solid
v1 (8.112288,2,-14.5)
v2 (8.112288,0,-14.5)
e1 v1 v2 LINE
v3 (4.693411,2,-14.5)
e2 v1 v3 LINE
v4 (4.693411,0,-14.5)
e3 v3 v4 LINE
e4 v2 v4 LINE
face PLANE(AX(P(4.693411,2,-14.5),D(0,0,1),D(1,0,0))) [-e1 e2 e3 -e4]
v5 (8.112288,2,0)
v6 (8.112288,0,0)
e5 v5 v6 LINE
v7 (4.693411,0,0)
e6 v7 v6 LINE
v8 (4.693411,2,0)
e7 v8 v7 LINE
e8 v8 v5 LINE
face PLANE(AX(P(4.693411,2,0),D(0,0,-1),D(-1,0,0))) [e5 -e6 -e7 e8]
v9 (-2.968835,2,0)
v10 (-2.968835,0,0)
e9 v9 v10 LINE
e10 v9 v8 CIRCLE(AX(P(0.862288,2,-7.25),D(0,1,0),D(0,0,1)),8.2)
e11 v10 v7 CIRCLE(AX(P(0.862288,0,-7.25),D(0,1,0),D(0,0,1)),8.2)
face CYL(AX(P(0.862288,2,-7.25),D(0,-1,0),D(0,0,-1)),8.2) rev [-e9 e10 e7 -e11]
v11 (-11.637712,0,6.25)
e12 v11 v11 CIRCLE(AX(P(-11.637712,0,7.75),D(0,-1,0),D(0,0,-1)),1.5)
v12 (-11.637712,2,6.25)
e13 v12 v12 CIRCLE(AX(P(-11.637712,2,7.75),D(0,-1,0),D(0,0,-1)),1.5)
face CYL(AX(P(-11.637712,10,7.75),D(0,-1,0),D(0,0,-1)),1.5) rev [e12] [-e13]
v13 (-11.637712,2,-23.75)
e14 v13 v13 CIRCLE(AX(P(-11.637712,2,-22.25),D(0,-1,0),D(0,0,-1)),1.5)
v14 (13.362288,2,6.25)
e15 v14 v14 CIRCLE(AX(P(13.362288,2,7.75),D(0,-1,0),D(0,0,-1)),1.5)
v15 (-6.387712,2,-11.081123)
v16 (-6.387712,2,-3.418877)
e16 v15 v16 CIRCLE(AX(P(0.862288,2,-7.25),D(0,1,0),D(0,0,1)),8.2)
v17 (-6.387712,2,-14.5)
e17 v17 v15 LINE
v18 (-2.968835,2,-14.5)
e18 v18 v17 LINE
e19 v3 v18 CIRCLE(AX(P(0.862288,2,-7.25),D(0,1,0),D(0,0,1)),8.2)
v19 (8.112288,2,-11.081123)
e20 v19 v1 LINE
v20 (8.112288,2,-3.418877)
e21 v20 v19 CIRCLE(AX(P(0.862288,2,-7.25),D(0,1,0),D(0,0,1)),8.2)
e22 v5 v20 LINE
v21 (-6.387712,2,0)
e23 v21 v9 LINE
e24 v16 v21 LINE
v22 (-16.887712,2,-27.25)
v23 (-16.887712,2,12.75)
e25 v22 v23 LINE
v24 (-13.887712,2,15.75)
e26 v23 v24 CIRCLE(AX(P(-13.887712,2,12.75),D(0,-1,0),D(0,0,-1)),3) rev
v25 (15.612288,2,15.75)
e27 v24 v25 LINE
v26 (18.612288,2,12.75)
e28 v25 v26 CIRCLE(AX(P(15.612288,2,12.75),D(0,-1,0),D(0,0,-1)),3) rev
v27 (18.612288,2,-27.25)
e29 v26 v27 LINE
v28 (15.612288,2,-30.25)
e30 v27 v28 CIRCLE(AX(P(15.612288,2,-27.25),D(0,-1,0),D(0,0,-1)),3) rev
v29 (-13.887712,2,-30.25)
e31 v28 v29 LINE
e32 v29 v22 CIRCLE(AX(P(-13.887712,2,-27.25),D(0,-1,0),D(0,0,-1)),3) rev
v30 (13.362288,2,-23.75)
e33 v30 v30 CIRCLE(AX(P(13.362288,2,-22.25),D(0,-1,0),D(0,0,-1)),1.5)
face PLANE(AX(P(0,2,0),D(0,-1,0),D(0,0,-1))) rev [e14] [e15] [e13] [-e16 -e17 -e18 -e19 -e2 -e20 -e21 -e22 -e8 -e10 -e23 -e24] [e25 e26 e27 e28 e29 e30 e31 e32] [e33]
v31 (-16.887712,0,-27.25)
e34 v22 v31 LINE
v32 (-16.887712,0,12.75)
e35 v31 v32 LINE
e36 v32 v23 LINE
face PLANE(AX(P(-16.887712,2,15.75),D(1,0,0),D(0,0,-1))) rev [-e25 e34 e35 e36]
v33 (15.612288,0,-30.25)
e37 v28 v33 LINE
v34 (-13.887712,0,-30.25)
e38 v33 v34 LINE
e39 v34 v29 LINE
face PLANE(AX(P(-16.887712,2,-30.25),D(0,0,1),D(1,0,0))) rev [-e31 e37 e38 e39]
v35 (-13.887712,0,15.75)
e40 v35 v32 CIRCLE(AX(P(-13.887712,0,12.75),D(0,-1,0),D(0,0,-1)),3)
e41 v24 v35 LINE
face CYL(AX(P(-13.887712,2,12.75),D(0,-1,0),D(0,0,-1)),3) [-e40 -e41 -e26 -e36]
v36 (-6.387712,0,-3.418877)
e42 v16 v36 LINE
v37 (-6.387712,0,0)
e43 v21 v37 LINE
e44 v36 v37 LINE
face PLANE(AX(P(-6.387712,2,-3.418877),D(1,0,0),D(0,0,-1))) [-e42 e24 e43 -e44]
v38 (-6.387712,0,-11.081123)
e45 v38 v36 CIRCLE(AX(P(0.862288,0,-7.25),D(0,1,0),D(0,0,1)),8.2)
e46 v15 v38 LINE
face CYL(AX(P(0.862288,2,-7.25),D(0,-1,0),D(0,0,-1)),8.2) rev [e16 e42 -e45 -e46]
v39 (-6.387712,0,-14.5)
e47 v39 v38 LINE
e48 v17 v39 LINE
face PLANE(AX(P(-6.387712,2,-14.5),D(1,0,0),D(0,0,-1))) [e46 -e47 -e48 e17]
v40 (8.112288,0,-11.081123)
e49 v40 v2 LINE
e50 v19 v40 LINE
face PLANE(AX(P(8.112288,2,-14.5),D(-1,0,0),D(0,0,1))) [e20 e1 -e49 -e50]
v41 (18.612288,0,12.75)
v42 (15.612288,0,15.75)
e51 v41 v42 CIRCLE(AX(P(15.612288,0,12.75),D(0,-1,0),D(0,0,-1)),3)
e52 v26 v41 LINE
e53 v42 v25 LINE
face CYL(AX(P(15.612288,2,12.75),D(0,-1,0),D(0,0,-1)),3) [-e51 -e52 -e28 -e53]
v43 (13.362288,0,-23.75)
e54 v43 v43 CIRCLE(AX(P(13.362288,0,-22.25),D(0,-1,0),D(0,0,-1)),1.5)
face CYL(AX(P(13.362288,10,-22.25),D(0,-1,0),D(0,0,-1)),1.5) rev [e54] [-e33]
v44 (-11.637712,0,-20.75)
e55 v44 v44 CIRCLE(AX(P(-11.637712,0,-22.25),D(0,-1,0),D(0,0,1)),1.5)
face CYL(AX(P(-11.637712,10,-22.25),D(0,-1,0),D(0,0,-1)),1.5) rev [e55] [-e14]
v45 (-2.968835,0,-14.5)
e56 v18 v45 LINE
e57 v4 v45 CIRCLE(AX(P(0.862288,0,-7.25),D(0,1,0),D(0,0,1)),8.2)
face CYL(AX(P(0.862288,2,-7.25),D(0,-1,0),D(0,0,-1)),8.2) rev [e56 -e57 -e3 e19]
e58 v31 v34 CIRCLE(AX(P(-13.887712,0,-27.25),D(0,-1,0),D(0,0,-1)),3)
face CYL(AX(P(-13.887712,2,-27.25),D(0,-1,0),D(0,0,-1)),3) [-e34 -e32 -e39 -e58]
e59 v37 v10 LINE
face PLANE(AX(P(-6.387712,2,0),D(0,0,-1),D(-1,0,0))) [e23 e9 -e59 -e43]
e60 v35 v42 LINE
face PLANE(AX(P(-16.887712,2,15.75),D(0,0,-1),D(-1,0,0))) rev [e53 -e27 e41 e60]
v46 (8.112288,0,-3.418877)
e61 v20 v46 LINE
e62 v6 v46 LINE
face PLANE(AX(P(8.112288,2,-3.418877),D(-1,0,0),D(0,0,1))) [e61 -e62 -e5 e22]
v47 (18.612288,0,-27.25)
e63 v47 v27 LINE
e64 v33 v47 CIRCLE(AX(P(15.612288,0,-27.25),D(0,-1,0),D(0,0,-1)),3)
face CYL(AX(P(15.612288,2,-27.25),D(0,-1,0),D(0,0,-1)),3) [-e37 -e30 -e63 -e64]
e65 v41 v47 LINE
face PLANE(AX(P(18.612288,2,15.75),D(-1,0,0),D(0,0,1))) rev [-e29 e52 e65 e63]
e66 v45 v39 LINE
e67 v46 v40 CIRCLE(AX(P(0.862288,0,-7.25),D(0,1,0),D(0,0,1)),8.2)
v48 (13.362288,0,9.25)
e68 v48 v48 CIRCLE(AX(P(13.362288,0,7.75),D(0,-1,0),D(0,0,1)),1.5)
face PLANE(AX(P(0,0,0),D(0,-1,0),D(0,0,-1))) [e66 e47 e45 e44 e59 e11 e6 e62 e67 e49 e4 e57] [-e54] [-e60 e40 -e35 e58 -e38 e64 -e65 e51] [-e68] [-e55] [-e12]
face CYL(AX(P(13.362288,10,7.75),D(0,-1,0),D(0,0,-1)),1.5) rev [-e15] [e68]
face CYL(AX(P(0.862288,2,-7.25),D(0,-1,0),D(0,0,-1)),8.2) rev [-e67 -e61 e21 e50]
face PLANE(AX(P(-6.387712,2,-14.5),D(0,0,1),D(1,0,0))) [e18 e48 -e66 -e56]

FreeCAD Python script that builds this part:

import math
import FreeCAD as App
import Part
import Sketcher
from FreeCAD import Vector
Q = App.Units.Quantity


def edges_at(feature, points):
    """Names of the edges that pass closest to the given points."""
    edges = feature.Shape.Edges
    near = lambda p: min(range(len(edges)), key=lambda i: edges[i].distToShape(Part.Vertex(*p))[0])
    return sorted({f"Edge{near(p) + 1}" for p in points})


def add_polygon(sketch, points):
    """Adds a closed chain of lines whose ends are joined by coincident constraints."""
    first, n = sketch.GeometryCount, len(points)
    for a, b in zip(points, points[1:] + points[:1]):
        sketch.addGeometry(Part.LineSegment(App.Vector(*a, 0), App.Vector(*b, 0)), False)
    for i in range(n):
        sketch.addConstraint(Sketcher.Constraint("Coincident", first + i, 2, first + (i + 1) % n, 1))

doc = App.newDocument("Part")
params = doc.addObject("Spreadsheet::Sheet", "Params")
for row, (alias, value) in enumerate([
    ("sketch1_radius", "8.2 mm"),
    ("sketch1_height", "46 mm"),
    ("sketch1_width", "35.5 mm"),
    ("pad1_length", "2 mm"),
    ("fillet_radius", "3 mm"),
    ("sketch2_diameter", "3 mm"),
    ("pocket1_length", "10 mm"),
], start=1):
    params.set(f"A{row}", alias)
    params.set(f"B{row}", "=" + value)
    params.setAlias(f"B{row}", alias)

body = doc.addObject("PartDesign::Body", "Body")

sketch1 = body.newObject("Sketcher::SketchObject", "Sketch")
sketch1.AttachmentSupport = (doc.getObject("XZ_Plane"), [""])
sketch1.MapMode = "FlatFace"
add_polygon(sketch1, [(-16.887712, -30.25), (-16.887712, 15.75), (18.612288, 15.75), (18.612288, -30.25)])
sketch1.addGeometry(Part.LineSegment(Vector(-6.387712, 0, 0), Vector(-6.387712, -3.418877, 0)), False)
sketch1.addGeometry(Part.ArcOfCircle(Part.Circle(Vector(0.862288, -7.25, 0), Vector(0, 0, 1), 8.2), math.radians(152.146652), math.radians(207.853348)), False)
sketch1.addGeometry(Part.LineSegment(Vector(-6.387712, -11.081123, 0), Vector(-6.387712, -14.5, 0)), False)
sketch1.addGeometry(Part.LineSegment(Vector(-6.387712, -14.5, 0), Vector(-2.968835, -14.5, 0)), False)
sketch1.addGeometry(Part.ArcOfCircle(Part.Circle(Vector(0.862288, -7.25, 0), Vector(0, 0, 1), 8.2), math.radians(-117.853348), math.radians(-62.146652)), False)
sketch1.addGeometry(Part.LineSegment(Vector(4.693411, -14.5, 0), Vector(8.112288, -14.5, 0)), False)
sketch1.addGeometry(Part.LineSegment(Vector(8.112288, -14.5, 0), Vector(8.112288, -11.081123, 0)), False)
sketch1.addGeometry(Part.ArcOfCircle(Part.Circle(Vector(0.862288, -7.25, 0), Vector(0, 0, 1), 8.2), math.radians(-27.853348), math.radians(27.853348)), False)
sketch1.addGeometry(Part.LineSegment(Vector(8.112288, -3.418877, 0), Vector(8.112288, 0, 0)), False)
sketch1.addGeometry(Part.LineSegment(Vector(8.112288, 0, 0), Vector(4.693411, 0, 0)), False)
sketch1.addGeometry(Part.ArcOfCircle(Part.Circle(Vector(0.862288, -7.25, 0), Vector(0, 0, 1), 8.2), math.radians(62.146652), math.radians(117.853348)), False)
sketch1.addGeometry(Part.LineSegment(Vector(-2.968835, 0, 0), Vector(-6.387712, 0, 0)), False)
sketch1.addConstraint([
    Sketcher.Constraint("Coincident", 4, 2, 5, 1),
    Sketcher.Constraint("Coincident", 5, 2, 6, 1),
    Sketcher.Constraint("Coincident", 6, 2, 7, 1),
    Sketcher.Constraint("Coincident", 7, 2, 8, 1),
    Sketcher.Constraint("Coincident", 8, 2, 9, 1),
    Sketcher.Constraint("Coincident", 9, 2, 10, 1),
    Sketcher.Constraint("Coincident", 10, 2, 11, 1),
    Sketcher.Constraint("Coincident", 11, 2, 12, 1),
    Sketcher.Constraint("Coincident", 12, 2, 13, 1),
    Sketcher.Constraint("Coincident", 13, 2, 14, 1),
    Sketcher.Constraint("Coincident", 14, 2, 15, 1),
    Sketcher.Constraint("Coincident", 15, 2, 4, 1),
    Sketcher.Constraint("Vertical", 0),
    Sketcher.Constraint("Horizontal", 1),
    Sketcher.Constraint("Vertical", 2),
    Sketcher.Constraint("Horizontal", 3),
    Sketcher.Constraint("Vertical", 4),
    Sketcher.Constraint("Vertical", 6),
    Sketcher.Constraint("Horizontal", 7),
    Sketcher.Constraint("Horizontal", 9),
    Sketcher.Constraint("Vertical", 10),
    Sketcher.Constraint("Vertical", 12),
    Sketcher.Constraint("Horizontal", 13),
    Sketcher.Constraint("Horizontal", 15),
    Sketcher.Constraint("Coincident", 8, 3, 5, 3),
    Sketcher.Constraint("Coincident", 11, 3, 5, 3),
    Sketcher.Constraint("Coincident", 14, 3, 5, 3),
    Sketcher.Constraint("Equal", 5, 8),
    Sketcher.Constraint("Equal", 8, 11),
    Sketcher.Constraint("Equal", 11, 14),
    Sketcher.Constraint("PointOnObject", 12, 2, -1),
    Sketcher.Constraint("PointOnObject", 14, 2, -1),
    Sketcher.Constraint("Horizontal", 7, 2, 8, 2),
    Sketcher.Constraint("Horizontal", 5, 2, 10, 2),
    Sketcher.Constraint("Horizontal", 4, 2, 11, 2),
    Sketcher.Constraint("Vertical", 4, 2, 5, 2),
    Sketcher.Constraint("Vertical", 8, 2, 13, 2),
    Sketcher.Constraint("Equal", 15, 4),
    Sketcher.Constraint("Radius", 5, Q("8.2 mm")),
    Sketcher.Constraint("DistanceY", 0, 1, 0, 2, Q("46 mm")),
    Sketcher.Constraint("DistanceX", 1, 1, 1, 2, Q("35.5 mm")),
    Sketcher.Constraint("DistanceY", 5, 3, 0, 2, Q("23 mm")),
    Sketcher.Constraint("DistanceY", 6, 2, -1, 1, Q("14.5 mm")),
    Sketcher.Constraint("DistanceX", 0, 2, 4, 2, Q("10.5 mm")),
    Sketcher.Constraint("DistanceX", -1, 1, 8, 2, Q("4.693411 mm")),
])
sketch1.setExpression("Constraints[42]", "Params.sketch1_radius")
sketch1.setExpression("Constraints[43]", "Params.sketch1_height")
sketch1.setExpression("Constraints[44]", "Params.sketch1_width")
pad1 = body.newObject("PartDesign::Pad", "Pad")
pad1.Profile = sketch1
pad1.setExpression("Length", "Params.pad1_length")
pad1.Reversed = True
doc.recompute()

fillet = body.newObject("PartDesign::Fillet", "Fillet")
fillet.Base = (pad1, edges_at(pad1, [
    (-16.888, 1, -30.25),
    (18.612, 1, -30.25),
    (18.612, 1, 15.75),
    (-16.888, 1, 15.75),
]))
fillet.setExpression("Radius", "Params.fillet_radius")

sketch2 = body.newObject("Sketcher::SketchObject", "Sketch001")
sketch2.AttachmentSupport = (doc.getObject("XZ_Plane"), [""])
sketch2.MapMode = "FlatFace"
sketch2.addGeometry([
    Part.Circle(Vector(-11.637712, 7.75, 0), Vector(0, 0, 1), 1.5),
    Part.Circle(Vector(-11.637712, -22.25, 0), Vector(0, 0, 1), 1.5),
    Part.Circle(Vector(13.362288, -22.25, 0), Vector(0, 0, 1), 1.5),
    Part.Circle(Vector(13.362288, 7.75, 0), Vector(0, 0, 1), 1.5),
], False)
sketch2.addConstraint([
    Sketcher.Constraint("Equal", 0, 1),
    Sketcher.Constraint("Equal", 1, 2),
    Sketcher.Constraint("Equal", 2, 3),
    Sketcher.Constraint("Horizontal", 1, 3, 2, 3),
    Sketcher.Constraint("Horizontal", 0, 3, 3, 3),
    Sketcher.Constraint("Vertical", 0, 3, 1, 3),
    Sketcher.Constraint("Vertical", 2, 3, 3, 3),
    Sketcher.Constraint("Diameter", 0, Q("3 mm")),
    Sketcher.Constraint("DistanceY", 1, 3, 0, 3, Q("30 mm")),
    Sketcher.Constraint("DistanceX", 1, 3, 2, 3, Q("25 mm")),
    Sketcher.Constraint("DistanceY", -1, 1, 0, 3, Q("7.75 mm")),
    Sketcher.Constraint("DistanceX", 0, 3, -1, 1, Q("11.637712 mm")),
])
sketch2.setExpression("Constraints[7]", "Params.sketch2_diameter")
pocket1 = body.newObject("PartDesign::Pocket", "Pocket")
pocket1.Profile = sketch2
pocket1.setExpression("Length", "Params.pocket1_length")

doc.recompute()
